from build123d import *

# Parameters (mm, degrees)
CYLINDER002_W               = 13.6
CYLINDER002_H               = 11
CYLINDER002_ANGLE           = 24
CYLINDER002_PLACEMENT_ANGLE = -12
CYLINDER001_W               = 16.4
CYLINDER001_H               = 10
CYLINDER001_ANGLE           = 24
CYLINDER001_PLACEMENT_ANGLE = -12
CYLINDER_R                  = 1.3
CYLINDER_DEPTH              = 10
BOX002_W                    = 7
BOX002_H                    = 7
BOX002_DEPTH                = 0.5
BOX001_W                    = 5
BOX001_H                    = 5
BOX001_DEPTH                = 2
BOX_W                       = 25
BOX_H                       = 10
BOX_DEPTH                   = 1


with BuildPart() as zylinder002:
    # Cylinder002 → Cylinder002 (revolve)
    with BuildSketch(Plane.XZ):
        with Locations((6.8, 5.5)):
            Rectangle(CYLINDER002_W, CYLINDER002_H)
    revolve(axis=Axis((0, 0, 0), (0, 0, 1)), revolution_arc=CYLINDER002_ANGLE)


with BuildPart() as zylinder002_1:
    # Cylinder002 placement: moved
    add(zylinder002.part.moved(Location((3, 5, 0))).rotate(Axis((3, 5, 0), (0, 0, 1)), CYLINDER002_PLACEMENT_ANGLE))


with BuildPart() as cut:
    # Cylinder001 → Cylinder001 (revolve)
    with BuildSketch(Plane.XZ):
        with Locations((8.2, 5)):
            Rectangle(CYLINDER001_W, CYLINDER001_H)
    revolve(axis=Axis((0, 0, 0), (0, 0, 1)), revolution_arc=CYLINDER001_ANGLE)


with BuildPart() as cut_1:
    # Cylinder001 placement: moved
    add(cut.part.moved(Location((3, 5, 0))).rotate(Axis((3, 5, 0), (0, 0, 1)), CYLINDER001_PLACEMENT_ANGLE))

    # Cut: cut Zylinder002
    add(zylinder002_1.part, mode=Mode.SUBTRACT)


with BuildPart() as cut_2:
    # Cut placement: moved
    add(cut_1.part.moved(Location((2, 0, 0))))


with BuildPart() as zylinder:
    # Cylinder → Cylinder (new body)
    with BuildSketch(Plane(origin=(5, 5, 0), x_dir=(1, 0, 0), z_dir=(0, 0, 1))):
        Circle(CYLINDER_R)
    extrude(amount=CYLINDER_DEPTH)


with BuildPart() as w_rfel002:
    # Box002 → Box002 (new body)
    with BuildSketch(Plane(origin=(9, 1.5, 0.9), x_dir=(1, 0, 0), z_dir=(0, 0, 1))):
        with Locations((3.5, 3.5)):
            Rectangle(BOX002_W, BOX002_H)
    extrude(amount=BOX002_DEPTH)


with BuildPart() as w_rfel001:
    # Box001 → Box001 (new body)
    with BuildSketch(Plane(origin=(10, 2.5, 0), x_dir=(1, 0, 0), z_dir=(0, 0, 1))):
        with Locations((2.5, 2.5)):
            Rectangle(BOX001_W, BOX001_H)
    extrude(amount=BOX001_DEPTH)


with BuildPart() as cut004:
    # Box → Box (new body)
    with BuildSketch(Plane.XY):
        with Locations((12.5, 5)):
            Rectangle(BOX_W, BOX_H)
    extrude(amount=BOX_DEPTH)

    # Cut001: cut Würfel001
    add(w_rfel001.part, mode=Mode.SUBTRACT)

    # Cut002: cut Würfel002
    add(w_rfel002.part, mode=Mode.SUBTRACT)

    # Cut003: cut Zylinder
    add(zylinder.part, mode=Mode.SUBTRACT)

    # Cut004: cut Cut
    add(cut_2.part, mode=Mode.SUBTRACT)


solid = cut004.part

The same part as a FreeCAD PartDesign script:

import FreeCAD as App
import Part
import Sketcher
Q = App.Units.Quantity


def add_polygon(sketch, points):
    """Adds a closed chain of lines whose ends are joined by coincident constraints."""
    first, n = sketch.GeometryCount, len(points)
    for a, b in zip(points, points[1:] + points[:1]):
        sketch.addGeometry(Part.LineSegment(App.Vector(*a, 0), App.Vector(*b, 0)), False)
    for i in range(n):
        sketch.addConstraint(Sketcher.Constraint("Coincident", first + i, 2, first + (i + 1) % n, 1))

doc = App.newDocument("Part")
body = doc.addObject("PartDesign::Body", "Body")

# Sketch on XZ plane
sketch1 = body.newObject("Sketcher::SketchObject", "Sketch")
sketch1.AttachmentSupport = (doc.getObject("XZ_Plane"), [""])
sketch1.MapMode = "FlatFace"
add_polygon(sketch1, [(0, 11), (0, 0), (13.6, 0), (13.6, 11)])  # lines 0-3
sketch1.addConstraint(Sketcher.Constraint("Vertical", 0))
sketch1.addConstraint(Sketcher.Constraint("Horizontal", 1))
sketch1.addConstraint(Sketcher.Constraint("Vertical", 2))
sketch1.addConstraint(Sketcher.Constraint("Horizontal", 3))
sketch1.addConstraint(Sketcher.Constraint("Coincident", 0, 2, -1, 1))
sketch1.addConstraint(Sketcher.Constraint("DistanceY", 0, 2, 0, 1, Q("11 mm")))
sketch1.addConstraint(Sketcher.Constraint("DistanceX", 1, 1, 1, 2, Q("13.6 mm")))
revolution = body.newObject("PartDesign::Revolution", "Revolution")
revolution.Profile = sketch1
revolution.ReferenceAxis = (sketch1, ["V_Axis"])
revolution.Angle = 24
body2 = doc.addObject("PartDesign::Body", "Body001")
doc.recompute()

body.Placement = App.Placement(App.Vector(3, 5, 0), App.Rotation(App.Vector(0, 0, 1), 348))
boolean = body2.newObject("PartDesign::Boolean", "Boolean")
boolean.Type = "Fuse"
boolean.addObjects([body])
body3 = doc.addObject("PartDesign::Body", "Body002")

# Sketch on XZ plane
sketch2 = body3.newObject("Sketcher::SketchObject", "Sketch001")
sketch2.AttachmentSupport = (doc.getObject("XZ_Plane002"), [""])
sketch2.MapMode = "FlatFace"
add_polygon(sketch2, [(0, 10), (0, 0), (16.4, 0), (16.4, 10)])  # lines 0-3
sketch2.addConstraint(Sketcher.Constraint("Vertical", 0))
sketch2.addConstraint(Sketcher.Constraint("Horizontal", 1))
sketch2.addConstraint(Sketcher.Constraint("Vertical", 2))
sketch2.addConstraint(Sketcher.Constraint("Horizontal", 3))
sketch2.addConstraint(Sketcher.Constraint("Coincident", 0, 2, -1, 1))
sketch2.addConstraint(Sketcher.Constraint("DistanceY", 0, 2, 0, 1, Q("10 mm")))
sketch2.addConstraint(Sketcher.Constraint("DistanceX", 1, 1, 1, 2, Q("16.4 mm")))
revolution2 = body3.newObject("PartDesign::Revolution", "Revolution001")
revolution2.Profile = sketch2
revolution2.ReferenceAxis = (sketch2, ["V_Axis"])
revolution2.Angle = 24
body4 = doc.addObject("PartDesign::Body", "Body003")
doc.recompute()

body3.Placement = App.Placement(App.Vector(3, 5, 0), App.Rotation(App.Vector(0, 0, 1), 348))
boolean2 = body4.newObject("PartDesign::Boolean", "Boolean001")
boolean2.Type = "Fuse"
boolean2.addObjects([body3])
doc.recompute()

boolean3 = body4.newObject("PartDesign::Boolean", "Boolean002")
boolean3.Type = "Cut"
boolean3.addObjects([body2])
body5 = doc.addObject("PartDesign::Body", "Body004")
doc.recompute()

body4.Placement = App.Placement(App.Vector(2, 0, 0), App.Rotation(App.Vector(0, 0, 1), 0))
boolean4 = body5.newObject("PartDesign::Boolean", "Boolean003")
boolean4.Type = "Fuse"
boolean4.addObjects([body4])
body6 = doc.addObject("PartDesign::Body", "Body005")

# Sketch on XY plane
sketch3 = body6.newObject("Sketcher::SketchObject", "Sketch002")
sketch3.AttachmentSupport = (doc.getObject("XY_Plane005"), [""])
sketch3.MapMode = "FlatFace"
sketch3.addGeometry(Part.Circle(App.Vector(5, 5, 0), App.Vector(0, 0, 1), 1.3), False)
sketch3.addConstraint(Sketcher.Constraint("Diameter", 0, Q("2.6 mm")))
sketch3.addConstraint(Sketcher.Constraint("DistanceX", -1, 1, 0, 3, Q("5 mm")))
sketch3.addConstraint(Sketcher.Constraint("DistanceY", -1, 1, 0, 3, Q("5 mm")))
pad1 = body6.newObject("PartDesign::Pad", "Pad")
pad1.Profile = sketch3
pad1.Length = 10
body7 = doc.addObject("PartDesign::Body", "Body006")

# Sketch on XY plane
sketch4 = body7.newObject("Sketcher::SketchObject", "Sketch003")
sketch4.AttachmentSupport = (doc.getObject("XY_Plane006"), [""])
sketch4.MapMode = "FlatFace"
sketch4.AttachmentOffset = App.Placement(App.Vector(0, 0, 0.9), App.Rotation())
add_polygon(sketch4, [(9, 8.5), (9, 1.5), (16, 1.5), (16, 8.5)])  # lines 0-3
sketch4.addConstraint(Sketcher.Constraint("Vertical", 0))
sketch4.addConstraint(Sketcher.Constraint("Horizontal", 1))
sketch4.addConstraint(Sketcher.Constraint("Vertical", 2))
sketch4.addConstraint(Sketcher.Constraint("Horizontal", 3))
sketch4.addConstraint(Sketcher.Constraint("Equal", 3, 0))
sketch4.addConstraint(Sketcher.Constraint("DistanceX", 1, 1, 1, 2, Q("7 mm")))
sketch4.addConstraint(Sketcher.Constraint("DistanceX", -1, 1, 0, 2, Q("9 mm")))
sketch4.addConstraint(Sketcher.Constraint("DistanceY", -1, 1, 0, 2, Q("1.5 mm")))
pad2 = body7.newObject("PartDesign::Pad", "Pad001")
pad2.Profile = sketch4
pad2.Length = 0.5
body8 = doc.addObject("PartDesign::Body", "Body007")

# Sketch on XY plane
sketch5 = body8.newObject("Sketcher::SketchObject", "Sketch004")
sketch5.AttachmentSupport = (doc.getObject("XY_Plane007"), [""])
sketch5.MapMode = "FlatFace"
add_polygon(sketch5, [(10, 7.5), (10, 2.5), (15, 2.5), (15, 7.5)])  # lines 0-3
sketch5.addConstraint(Sketcher.Constraint("Vertical", 0))
sketch5.addConstraint(Sketcher.Constraint("Horizontal", 1))
sketch5.addConstraint(Sketcher.Constraint("Vertical", 2))
sketch5.addConstraint(Sketcher.Constraint("Horizontal", 3))
sketch5.addConstraint(Sketcher.Constraint("Equal", 3, 0))
sketch5.addConstraint(Sketcher.Constraint("DistanceX", 1, 1, 1, 2, Q("5 mm")))
sketch5.addConstraint(Sketcher.Constraint("DistanceX", -1, 1, 0, 2, Q("10 mm")))
sketch5.addConstraint(Sketcher.Constraint("DistanceY", -1, 1, 0, 2, Q("2.5 mm")))
pad3 = body8.newObject("PartDesign::Pad", "Pad002")
pad3.Profile = sketch5
pad3.Length = 2
body9 = doc.addObject("PartDesign::Body", "Body008")

# Sketch on XY plane
sketch6 = body9.newObject("Sketcher::SketchObject", "Sketch005")
sketch6.AttachmentSupport = (doc.getObject("XY_Plane008"), [""])
sketch6.MapMode = "FlatFace"
add_polygon(sketch6, [(0, 10), (0, 0), (25, 0), (25, 10)])  # lines 0-3
sketch6.addConstraint(Sketcher.Constraint("Vertical", 0))
sketch6.addConstraint(Sketcher.Constraint("Horizontal", 1))
sketch6.addConstraint(Sketcher.Constraint("Vertical", 2))
sketch6.addConstraint(Sketcher.Constraint("Horizontal", 3))
sketch6.addConstraint(Sketcher.Constraint("Coincident", 0, 2, -1, 1))
sketch6.addConstraint(Sketcher.Constraint("DistanceX", 1, 1, 1, 2, Q("25 mm")))
sketch6.addConstraint(Sketcher.Constraint("DistanceY", 0, 2, 0, 1, Q("10 mm")))
pad4 = body9.newObject("PartDesign::Pad", "Pad003")
pad4.Profile = sketch6
pad4.Length = 1
doc.recompute()

boolean5 = body9.newObject("PartDesign::Boolean", "Boolean004")
boolean5.Type = "Cut"
boolean5.addObjects([body8])
doc.recompute()

boolean6 = body9.newObject("PartDesign::Boolean", "Boolean005")
boolean6.Type = "Cut"
boolean6.addObjects([body7])
doc.recompute()

boolean7 = body9.newObject("PartDesign::Boolean", "Boolean006")
boolean7.Type = "Cut"
boolean7.addObjects([body6])
doc.recompute()

boolean8 = body9.newObject("PartDesign::Boolean", "Boolean007")
boolean8.Type = "Cut"
boolean8.addObjects([body5])

doc.recompute()
